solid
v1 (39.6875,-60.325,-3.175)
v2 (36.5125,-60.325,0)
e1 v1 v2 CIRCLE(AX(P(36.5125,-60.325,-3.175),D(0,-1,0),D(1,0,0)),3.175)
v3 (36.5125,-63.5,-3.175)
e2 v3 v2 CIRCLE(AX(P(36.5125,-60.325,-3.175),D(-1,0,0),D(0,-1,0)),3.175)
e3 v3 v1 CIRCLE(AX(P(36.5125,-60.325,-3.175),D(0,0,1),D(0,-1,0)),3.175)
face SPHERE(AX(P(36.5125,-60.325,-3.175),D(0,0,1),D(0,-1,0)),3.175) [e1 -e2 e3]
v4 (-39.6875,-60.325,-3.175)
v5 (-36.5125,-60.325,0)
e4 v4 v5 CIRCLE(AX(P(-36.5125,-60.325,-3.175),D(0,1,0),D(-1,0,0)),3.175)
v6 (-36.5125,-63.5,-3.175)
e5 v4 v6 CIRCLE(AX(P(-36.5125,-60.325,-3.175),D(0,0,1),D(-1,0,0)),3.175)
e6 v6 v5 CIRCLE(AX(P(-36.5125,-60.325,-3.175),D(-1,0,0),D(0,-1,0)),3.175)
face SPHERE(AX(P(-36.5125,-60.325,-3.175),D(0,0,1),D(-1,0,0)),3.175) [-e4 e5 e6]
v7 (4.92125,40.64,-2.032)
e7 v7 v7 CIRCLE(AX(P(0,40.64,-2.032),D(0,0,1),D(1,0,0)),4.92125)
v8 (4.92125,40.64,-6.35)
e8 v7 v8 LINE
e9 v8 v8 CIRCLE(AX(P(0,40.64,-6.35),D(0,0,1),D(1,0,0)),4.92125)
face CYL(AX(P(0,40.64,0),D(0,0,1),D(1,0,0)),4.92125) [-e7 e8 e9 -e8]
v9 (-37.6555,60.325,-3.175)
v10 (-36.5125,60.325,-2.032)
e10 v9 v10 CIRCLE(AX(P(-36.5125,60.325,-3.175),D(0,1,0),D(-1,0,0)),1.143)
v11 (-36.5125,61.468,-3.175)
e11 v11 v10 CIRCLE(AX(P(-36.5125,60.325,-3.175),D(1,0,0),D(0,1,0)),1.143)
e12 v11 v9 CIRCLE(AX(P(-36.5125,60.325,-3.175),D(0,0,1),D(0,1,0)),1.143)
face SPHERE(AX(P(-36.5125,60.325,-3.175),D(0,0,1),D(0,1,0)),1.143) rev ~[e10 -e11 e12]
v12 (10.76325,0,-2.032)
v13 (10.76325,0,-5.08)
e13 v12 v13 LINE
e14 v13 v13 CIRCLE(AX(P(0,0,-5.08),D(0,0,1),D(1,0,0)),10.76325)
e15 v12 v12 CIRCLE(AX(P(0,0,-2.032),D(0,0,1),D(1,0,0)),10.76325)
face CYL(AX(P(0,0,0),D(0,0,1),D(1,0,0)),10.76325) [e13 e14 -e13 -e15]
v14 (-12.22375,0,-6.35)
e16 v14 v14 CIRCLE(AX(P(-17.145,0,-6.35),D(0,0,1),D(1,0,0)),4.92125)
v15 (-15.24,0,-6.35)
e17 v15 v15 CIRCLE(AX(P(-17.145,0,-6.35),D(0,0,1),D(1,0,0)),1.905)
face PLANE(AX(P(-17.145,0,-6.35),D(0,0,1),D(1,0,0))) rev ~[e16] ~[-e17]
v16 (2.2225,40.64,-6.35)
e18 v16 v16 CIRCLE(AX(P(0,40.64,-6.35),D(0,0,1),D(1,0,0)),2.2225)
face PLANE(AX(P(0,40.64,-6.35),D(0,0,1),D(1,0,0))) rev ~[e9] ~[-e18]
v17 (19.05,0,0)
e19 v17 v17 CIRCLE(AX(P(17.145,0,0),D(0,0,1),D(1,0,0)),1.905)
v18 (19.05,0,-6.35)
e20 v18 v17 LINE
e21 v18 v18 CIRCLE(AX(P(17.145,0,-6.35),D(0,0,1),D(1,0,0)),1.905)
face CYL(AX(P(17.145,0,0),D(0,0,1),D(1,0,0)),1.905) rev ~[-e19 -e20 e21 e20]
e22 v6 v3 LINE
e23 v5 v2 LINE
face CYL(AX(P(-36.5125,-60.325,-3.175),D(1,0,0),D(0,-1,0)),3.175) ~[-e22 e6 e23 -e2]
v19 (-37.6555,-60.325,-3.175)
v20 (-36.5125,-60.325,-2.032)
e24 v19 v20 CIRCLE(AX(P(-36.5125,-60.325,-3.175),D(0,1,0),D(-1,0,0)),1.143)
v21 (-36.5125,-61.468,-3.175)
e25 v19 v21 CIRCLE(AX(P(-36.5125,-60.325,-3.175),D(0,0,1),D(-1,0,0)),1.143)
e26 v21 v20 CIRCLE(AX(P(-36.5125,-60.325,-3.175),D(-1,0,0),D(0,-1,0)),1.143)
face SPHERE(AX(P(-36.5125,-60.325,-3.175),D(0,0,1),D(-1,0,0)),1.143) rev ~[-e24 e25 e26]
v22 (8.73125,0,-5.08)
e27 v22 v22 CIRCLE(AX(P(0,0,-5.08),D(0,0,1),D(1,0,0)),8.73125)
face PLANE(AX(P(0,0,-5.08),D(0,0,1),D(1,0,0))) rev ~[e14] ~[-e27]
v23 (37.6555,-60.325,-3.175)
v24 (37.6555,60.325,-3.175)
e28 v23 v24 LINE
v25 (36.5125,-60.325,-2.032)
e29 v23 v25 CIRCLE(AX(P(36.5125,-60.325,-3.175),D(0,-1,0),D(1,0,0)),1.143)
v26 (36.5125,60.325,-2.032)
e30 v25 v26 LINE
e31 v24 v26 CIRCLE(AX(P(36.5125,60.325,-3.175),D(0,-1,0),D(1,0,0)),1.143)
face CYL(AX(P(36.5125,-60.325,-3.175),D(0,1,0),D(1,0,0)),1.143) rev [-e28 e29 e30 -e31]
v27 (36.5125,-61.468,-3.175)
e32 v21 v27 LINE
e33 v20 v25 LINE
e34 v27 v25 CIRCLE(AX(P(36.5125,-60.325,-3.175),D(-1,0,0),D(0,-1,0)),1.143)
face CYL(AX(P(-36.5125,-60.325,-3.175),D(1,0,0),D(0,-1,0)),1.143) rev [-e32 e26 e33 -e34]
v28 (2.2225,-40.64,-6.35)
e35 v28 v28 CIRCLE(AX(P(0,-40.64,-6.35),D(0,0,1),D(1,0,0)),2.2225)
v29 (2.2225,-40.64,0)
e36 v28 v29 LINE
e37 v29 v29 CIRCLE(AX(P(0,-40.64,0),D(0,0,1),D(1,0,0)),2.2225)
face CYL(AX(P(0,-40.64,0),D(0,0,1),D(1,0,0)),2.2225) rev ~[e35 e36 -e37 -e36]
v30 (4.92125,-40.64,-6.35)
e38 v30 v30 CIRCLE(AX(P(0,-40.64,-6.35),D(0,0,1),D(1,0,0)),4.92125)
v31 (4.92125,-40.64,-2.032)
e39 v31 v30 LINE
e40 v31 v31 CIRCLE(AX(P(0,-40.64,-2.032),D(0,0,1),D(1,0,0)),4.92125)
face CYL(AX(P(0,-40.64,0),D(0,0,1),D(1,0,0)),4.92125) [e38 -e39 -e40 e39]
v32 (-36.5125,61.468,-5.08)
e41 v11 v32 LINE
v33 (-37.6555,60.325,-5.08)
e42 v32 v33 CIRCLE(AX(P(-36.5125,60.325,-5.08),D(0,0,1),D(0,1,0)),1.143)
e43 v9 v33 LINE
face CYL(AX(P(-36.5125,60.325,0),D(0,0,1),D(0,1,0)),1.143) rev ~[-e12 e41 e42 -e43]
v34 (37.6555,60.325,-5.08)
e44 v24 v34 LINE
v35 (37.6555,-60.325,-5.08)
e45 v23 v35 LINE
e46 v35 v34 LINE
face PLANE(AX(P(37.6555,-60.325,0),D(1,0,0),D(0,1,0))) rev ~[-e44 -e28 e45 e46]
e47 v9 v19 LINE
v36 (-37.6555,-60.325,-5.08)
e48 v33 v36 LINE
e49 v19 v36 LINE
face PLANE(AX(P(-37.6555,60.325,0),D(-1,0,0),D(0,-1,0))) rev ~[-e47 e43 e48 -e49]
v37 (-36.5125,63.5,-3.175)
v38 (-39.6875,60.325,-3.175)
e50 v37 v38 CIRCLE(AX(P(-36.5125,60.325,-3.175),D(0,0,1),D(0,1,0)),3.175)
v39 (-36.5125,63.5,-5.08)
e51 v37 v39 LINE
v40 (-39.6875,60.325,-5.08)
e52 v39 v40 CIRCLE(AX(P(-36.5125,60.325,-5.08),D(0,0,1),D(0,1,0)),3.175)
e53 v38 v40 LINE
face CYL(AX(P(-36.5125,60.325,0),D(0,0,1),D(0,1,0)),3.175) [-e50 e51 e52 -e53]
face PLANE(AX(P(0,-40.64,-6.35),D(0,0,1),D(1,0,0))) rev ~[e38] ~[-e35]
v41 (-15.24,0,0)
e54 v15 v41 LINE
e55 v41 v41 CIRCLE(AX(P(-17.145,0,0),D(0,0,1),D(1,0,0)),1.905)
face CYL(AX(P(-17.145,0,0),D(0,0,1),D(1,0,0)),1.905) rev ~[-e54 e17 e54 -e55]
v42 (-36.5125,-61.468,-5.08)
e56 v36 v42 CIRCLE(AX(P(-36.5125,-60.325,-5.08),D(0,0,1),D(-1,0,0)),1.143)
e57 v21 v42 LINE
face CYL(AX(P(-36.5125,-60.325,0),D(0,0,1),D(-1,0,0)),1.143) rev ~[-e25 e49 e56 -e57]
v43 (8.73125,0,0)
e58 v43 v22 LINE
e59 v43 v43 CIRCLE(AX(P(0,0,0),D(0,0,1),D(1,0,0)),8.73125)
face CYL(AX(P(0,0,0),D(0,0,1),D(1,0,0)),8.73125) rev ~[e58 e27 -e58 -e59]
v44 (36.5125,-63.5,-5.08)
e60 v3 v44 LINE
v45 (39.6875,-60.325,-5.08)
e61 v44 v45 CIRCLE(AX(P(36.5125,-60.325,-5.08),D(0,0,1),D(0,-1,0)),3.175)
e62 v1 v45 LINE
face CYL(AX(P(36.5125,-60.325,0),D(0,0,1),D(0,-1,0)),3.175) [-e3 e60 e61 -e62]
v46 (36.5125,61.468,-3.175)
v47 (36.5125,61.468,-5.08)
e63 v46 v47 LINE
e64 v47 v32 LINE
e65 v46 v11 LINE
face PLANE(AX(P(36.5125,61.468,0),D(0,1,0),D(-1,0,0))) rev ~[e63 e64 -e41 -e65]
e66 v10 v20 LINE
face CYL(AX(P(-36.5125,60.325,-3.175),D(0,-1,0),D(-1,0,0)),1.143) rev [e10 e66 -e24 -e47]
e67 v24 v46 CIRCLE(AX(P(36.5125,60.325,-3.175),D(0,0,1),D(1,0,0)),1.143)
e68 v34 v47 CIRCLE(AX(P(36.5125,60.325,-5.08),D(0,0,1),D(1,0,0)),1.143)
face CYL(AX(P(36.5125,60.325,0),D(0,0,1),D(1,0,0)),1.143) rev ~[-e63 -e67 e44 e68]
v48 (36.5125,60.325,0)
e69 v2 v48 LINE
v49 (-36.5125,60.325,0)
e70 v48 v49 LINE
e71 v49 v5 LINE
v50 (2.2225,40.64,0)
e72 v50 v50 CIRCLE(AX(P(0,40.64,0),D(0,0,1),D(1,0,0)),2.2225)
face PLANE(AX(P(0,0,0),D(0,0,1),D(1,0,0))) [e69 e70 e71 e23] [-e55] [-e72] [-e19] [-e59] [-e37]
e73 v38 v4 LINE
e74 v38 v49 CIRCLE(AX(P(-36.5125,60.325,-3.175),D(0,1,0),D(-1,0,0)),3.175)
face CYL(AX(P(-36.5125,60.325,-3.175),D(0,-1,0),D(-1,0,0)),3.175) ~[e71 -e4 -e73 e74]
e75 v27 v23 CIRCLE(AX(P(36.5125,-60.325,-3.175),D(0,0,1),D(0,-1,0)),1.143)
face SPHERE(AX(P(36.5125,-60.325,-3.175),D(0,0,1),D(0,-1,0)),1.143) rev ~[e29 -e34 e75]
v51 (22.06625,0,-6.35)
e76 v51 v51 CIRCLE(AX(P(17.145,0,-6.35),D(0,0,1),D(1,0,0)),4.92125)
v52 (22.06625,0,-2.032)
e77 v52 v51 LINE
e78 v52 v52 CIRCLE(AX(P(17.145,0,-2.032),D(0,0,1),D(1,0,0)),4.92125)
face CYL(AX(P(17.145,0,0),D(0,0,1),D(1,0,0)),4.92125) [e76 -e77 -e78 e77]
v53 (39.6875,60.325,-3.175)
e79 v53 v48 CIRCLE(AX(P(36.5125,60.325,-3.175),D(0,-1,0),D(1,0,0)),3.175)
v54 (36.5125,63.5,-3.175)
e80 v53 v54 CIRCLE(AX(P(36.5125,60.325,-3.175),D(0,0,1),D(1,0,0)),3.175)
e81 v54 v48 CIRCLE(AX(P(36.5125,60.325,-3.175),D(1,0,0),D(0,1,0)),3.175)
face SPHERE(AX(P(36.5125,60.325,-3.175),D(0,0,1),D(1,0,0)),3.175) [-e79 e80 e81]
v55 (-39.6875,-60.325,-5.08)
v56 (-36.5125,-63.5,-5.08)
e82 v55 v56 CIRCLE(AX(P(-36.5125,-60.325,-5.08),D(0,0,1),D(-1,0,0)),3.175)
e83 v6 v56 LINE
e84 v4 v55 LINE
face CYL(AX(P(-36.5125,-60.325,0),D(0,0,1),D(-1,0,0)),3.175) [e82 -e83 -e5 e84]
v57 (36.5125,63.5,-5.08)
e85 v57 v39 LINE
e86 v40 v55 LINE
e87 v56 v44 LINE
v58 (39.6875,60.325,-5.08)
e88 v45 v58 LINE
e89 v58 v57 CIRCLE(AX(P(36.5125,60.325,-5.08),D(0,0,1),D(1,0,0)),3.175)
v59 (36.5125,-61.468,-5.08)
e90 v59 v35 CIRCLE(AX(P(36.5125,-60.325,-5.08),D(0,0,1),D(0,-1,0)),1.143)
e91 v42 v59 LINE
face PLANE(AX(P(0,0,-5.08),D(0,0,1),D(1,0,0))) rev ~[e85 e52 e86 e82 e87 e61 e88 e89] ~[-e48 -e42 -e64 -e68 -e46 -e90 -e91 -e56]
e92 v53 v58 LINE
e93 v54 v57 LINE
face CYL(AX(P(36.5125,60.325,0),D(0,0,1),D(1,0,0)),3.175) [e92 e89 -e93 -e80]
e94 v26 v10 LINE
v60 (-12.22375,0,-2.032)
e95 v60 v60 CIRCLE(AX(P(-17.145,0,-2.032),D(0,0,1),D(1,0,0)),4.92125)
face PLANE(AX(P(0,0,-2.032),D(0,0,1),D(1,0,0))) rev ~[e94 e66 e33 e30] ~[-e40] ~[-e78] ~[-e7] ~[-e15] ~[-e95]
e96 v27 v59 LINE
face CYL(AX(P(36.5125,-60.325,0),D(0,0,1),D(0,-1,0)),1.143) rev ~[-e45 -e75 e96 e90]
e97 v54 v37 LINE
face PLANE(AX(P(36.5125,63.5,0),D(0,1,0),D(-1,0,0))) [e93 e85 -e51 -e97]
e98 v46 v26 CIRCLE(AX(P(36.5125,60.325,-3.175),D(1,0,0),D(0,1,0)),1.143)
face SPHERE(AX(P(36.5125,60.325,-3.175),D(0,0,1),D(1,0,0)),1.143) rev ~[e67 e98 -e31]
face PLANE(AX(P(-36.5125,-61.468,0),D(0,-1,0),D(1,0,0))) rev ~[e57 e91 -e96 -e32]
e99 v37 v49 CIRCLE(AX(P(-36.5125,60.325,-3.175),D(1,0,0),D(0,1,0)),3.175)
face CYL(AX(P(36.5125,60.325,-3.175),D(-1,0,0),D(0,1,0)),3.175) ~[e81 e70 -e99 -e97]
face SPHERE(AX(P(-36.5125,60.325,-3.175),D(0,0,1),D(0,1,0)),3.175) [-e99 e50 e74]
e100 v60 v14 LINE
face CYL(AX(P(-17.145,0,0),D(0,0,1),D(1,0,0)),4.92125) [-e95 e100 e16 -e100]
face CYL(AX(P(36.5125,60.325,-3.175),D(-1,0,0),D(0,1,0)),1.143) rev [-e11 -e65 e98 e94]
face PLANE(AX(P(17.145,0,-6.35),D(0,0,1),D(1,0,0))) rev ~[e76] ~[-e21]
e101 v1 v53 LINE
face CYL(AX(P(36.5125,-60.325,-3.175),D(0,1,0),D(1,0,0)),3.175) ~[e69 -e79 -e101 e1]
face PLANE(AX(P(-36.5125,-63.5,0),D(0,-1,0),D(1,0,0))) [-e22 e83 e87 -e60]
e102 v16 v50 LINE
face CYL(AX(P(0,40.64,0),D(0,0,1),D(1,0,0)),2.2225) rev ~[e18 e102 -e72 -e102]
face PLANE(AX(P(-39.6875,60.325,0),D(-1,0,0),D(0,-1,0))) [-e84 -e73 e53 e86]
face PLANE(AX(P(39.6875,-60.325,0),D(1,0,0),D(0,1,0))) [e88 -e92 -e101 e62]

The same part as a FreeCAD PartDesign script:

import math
import FreeCAD as App
import Part
import Sketcher

V = App.Vector
Q = App.Units.Quantity


def edges_at(feature, points):
    """Names of the edges that pass closest to the given points."""
    edges = feature.Shape.Edges
    near = lambda p: min(range(len(edges)), key=lambda i: edges[i].distToShape(Part.Vertex(*p))[0])
    return sorted({f"Edge{near(p) + 1}" for p in points})


def faces_at(feature, points):
    """Names of the faces that lie closest to the given points."""
    faces = feature.Shape.Faces
    near = lambda p: min(range(len(faces)), key=lambda i: faces[i].distToShape(Part.Vertex(*p))[0])
    return sorted({f"Face{near(p) + 1}" for p in points})

doc = App.newDocument("Part")
body = doc.addObject("PartDesign::Body", "Body")

sketch1 = body.newObject("Sketcher::SketchObject", "Sketch")
sketch1.AttachmentSupport = (doc.getObject("XY_Plane"), [""])
sketch1.MapMode = "FlatFace"
sketch1.addGeometry(Part.ArcOfCircle(Part.Circle(V(36.5125, 60.325, 0), V(0, 0, 1), 3.175), math.radians(0), math.radians(90)), False)
sketch1.addGeometry(Part.LineSegment(V(36.5125, 63.5, 0), V(-36.5125, 63.5, 0)), False)
sketch1.addGeometry(Part.ArcOfCircle(Part.Circle(V(-36.5125, 60.325, 0), V(0, 0, 1), 3.175), math.radians(90), math.radians(180)), False)
sketch1.addGeometry(Part.LineSegment(V(-39.6875, 60.325, 0), V(-39.6875, -60.325, 0)), False)
sketch1.addGeometry(Part.ArcOfCircle(Part.Circle(V(-36.5125, -60.325, 0), V(0, 0, 1), 3.175), math.radians(180), math.radians(270)), False)
sketch1.addGeometry(Part.LineSegment(V(-36.5125, -63.5, 0), V(36.5125, -63.5, 0)), False)
sketch1.addGeometry(Part.ArcOfCircle(Part.Circle(V(36.5125, -60.325, 0), V(0, 0, 1), 3.175), math.radians(-90), math.radians(0)), False)
sketch1.addGeometry(Part.LineSegment(V(39.6875, -60.325, 0), V(39.6875, 60.325, 0)), False)
sketch1.addGeometry(Part.Circle(V(0, -40.64, 0), V(0, 0, 1), 2.2225), False)
sketch1.addGeometry(Part.Circle(V(-17.145, 0, 0), V(0, 0, 1), 1.905), False)
sketch1.addGeometry(Part.Circle(V(0, 0, 0), V(0, 0, 1), 8.73125), False)
sketch1.addGeometry(Part.Circle(V(17.145, 0, 0), V(0, 0, 1), 1.905), False)
sketch1.addGeometry(Part.Circle(V(0, 40.64, 0), V(0, 0, 1), 2.2225), False)
sketch1.addConstraint(Sketcher.Constraint("Tangent", 0, 2, 1, 1))
sketch1.addConstraint(Sketcher.Constraint("Tangent", 1, 2, 2, 1))
sketch1.addConstraint(Sketcher.Constraint("Tangent", 2, 2, 3, 1))
sketch1.addConstraint(Sketcher.Constraint("Tangent", 3, 2, 4, 1))
sketch1.addConstraint(Sketcher.Constraint("Tangent", 4, 2, 5, 1))
sketch1.addConstraint(Sketcher.Constraint("Tangent", 5, 2, 6, 1))
sketch1.addConstraint(Sketcher.Constraint("Tangent", 6, 2, 7, 1))
sketch1.addConstraint(Sketcher.Constraint("Tangent", 7, 2, 0, 1))
sketch1.addConstraint(Sketcher.Constraint("Horizontal", 1))
sketch1.addConstraint(Sketcher.Constraint("Vertical", 3))
sketch1.addConstraint(Sketcher.Constraint("Horizontal", 5))
sketch1.addConstraint(Sketcher.Constraint("Vertical", 7))
sketch1.addConstraint(Sketcher.Constraint("Coincident", 10, 3, -1, 1))
sketch1.addConstraint(Sketcher.Constraint("Equal", 0, 2))
sketch1.addConstraint(Sketcher.Constraint("Equal", 2, 4))
sketch1.addConstraint(Sketcher.Constraint("Equal", 4, 6))
sketch1.addConstraint(Sketcher.Constraint("Equal", 9, 11))
sketch1.addConstraint(Sketcher.Constraint("Equal", 8, 12))
sketch1.addConstraint(Sketcher.Constraint("Symmetric", 0, 3, 4, 3, -1, 1))
sketch1.addConstraint(Sketcher.Constraint("Symmetric", 9, 3, 11, 3, -1, 1))
sketch1.addConstraint(Sketcher.Constraint("Symmetric", 8, 3, 12, 3, -1, 1))
sketch1.addConstraint(Sketcher.Constraint("PointOnObject", 8, 3, -2))
sketch1.addConstraint(Sketcher.Constraint("PointOnObject", 9, 3, -1))
sketch1.addConstraint(Sketcher.Constraint("Diameter", 9, Q("0.15 in")))
sketch1.addConstraint(Sketcher.Constraint("Diameter", 8, Q("0.175 in")))
sketch1.addConstraint(Sketcher.Constraint("Diameter", 10, Q("0.6875 in")))
sketch1.addConstraint(Sketcher.Constraint("Radius", 0, Q("0.125 in")))
sketch1.addConstraint(Sketcher.Constraint("DistanceX", 3, 2, 6, 3, Q("3 in")))
sketch1.addConstraint(Sketcher.Constraint("DistanceY", 3, 2, 3, 1, Q("4.75 in")))
sketch1.addConstraint(Sketcher.Constraint("DistanceY", 8, 3, -1, 1, Q("1.6 in")))
sketch1.addConstraint(Sketcher.Constraint("DistanceX", 9, 3, 11, 3, Q("1.35 in")))
pad1 = body.newObject("PartDesign::Pad", "Pad")
pad1.Profile = sketch1
pad1.Length = Q("0.2 in")
pad1.Reversed = True
doc.recompute()

fillet = body.newObject("PartDesign::Fillet", "Fillet")
fillet.Base = (pad1, edges_at(pad1, [(0, -63.5, 0)]))
fillet.Radius = Q("0.125 in")
doc.recompute()

thickness = body.newObject("PartDesign::Thickness", "Thickness")
thickness.Base = (fillet, faces_at(fillet, [(-15.875, -25.4, -5.08)]))
thickness.Value = Q("0.08 in")
thickness.Reversed = True
thickness.Join = "Arc"

sketch2 = body.newObject("Sketcher::SketchObject", "Sketch001")
sketch2.AttachmentSupport = (doc.getObject("XY_Plane"), [""])
sketch2.MapMode = "FlatFace"
sketch2.addGeometry(Part.Circle(V(-17.145, 0, 0), V(0, 0, 1), 4.92125), False)
sketch2.addGeometry(Part.Circle(V(-17.145, 0, 0), V(0, 0, 1), 1.905), False)
sketch2.addGeometry(Part.Circle(V(17.145, 0, 0), V(0, 0, 1), 4.92125), False)
sketch2.addGeometry(Part.Circle(V(17.145, 0, 0), V(0, 0, 1), 1.905), False)
sketch2.addGeometry(Part.Circle(V(0, 40.64, 0), V(0, 0, 1), 4.92125), False)
sketch2.addGeometry(Part.Circle(V(0, 40.64, 0), V(0, 0, 1), 2.2225), False)
sketch2.addGeometry(Part.Circle(V(0, -40.64, 0), V(0, 0, 1), 4.92125), False)
sketch2.addGeometry(Part.Circle(V(0, -40.64, 0), V(0, 0, 1), 2.2225), False)
sketch2.addConstraint(Sketcher.Constraint("Coincident", 1, 3, 0, 3))
sketch2.addConstraint(Sketcher.Constraint("Coincident", 3, 3, 2, 3))
sketch2.addConstraint(Sketcher.Constraint("Coincident", 5, 3, 4, 3))
sketch2.addConstraint(Sketcher.Constraint("Coincident", 7, 3, 6, 3))
sketch2.addConstraint(Sketcher.Constraint("Equal", 0, 2))
sketch2.addConstraint(Sketcher.Constraint("Equal", 1, 3))
sketch2.addConstraint(Sketcher.Constraint("Equal", 2, 4))
sketch2.addConstraint(Sketcher.Constraint("Equal", 4, 6))
sketch2.addConstraint(Sketcher.Constraint("Equal", 5, 7))
sketch2.addConstraint(Sketcher.Constraint("Symmetric", 0, 3, 2, 3, -1, 1))
sketch2.addConstraint(Sketcher.Constraint("Symmetric", 4, 3, 6, 3, -1, 1))
sketch2.addConstraint(Sketcher.Constraint("PointOnObject", 0, 3, -1))
sketch2.addConstraint(Sketcher.Constraint("PointOnObject", 4, 3, -2))
sketch2.addConstraint(Sketcher.Constraint("Diameter", 1, Q("0.15 in")))
sketch2.addConstraint(Sketcher.Constraint("Diameter", 5, Q("0.175 in")))
sketch2.addConstraint(Sketcher.Constraint("Diameter", 0, Q("0.3875 in")))
sketch2.addConstraint(Sketcher.Constraint("DistanceY", -1, 1, 4, 3, Q("1.6 in")))
sketch2.addConstraint(Sketcher.Constraint("DistanceX", 0, 3, 2, 3, Q("1.35 in")))
pad2 = body.newObject("PartDesign::Pad", "Pad001")
pad2.Profile = sketch2
pad2.Length = Q("0.25 in")
pad2.Reversed = True

doc.recompute()
